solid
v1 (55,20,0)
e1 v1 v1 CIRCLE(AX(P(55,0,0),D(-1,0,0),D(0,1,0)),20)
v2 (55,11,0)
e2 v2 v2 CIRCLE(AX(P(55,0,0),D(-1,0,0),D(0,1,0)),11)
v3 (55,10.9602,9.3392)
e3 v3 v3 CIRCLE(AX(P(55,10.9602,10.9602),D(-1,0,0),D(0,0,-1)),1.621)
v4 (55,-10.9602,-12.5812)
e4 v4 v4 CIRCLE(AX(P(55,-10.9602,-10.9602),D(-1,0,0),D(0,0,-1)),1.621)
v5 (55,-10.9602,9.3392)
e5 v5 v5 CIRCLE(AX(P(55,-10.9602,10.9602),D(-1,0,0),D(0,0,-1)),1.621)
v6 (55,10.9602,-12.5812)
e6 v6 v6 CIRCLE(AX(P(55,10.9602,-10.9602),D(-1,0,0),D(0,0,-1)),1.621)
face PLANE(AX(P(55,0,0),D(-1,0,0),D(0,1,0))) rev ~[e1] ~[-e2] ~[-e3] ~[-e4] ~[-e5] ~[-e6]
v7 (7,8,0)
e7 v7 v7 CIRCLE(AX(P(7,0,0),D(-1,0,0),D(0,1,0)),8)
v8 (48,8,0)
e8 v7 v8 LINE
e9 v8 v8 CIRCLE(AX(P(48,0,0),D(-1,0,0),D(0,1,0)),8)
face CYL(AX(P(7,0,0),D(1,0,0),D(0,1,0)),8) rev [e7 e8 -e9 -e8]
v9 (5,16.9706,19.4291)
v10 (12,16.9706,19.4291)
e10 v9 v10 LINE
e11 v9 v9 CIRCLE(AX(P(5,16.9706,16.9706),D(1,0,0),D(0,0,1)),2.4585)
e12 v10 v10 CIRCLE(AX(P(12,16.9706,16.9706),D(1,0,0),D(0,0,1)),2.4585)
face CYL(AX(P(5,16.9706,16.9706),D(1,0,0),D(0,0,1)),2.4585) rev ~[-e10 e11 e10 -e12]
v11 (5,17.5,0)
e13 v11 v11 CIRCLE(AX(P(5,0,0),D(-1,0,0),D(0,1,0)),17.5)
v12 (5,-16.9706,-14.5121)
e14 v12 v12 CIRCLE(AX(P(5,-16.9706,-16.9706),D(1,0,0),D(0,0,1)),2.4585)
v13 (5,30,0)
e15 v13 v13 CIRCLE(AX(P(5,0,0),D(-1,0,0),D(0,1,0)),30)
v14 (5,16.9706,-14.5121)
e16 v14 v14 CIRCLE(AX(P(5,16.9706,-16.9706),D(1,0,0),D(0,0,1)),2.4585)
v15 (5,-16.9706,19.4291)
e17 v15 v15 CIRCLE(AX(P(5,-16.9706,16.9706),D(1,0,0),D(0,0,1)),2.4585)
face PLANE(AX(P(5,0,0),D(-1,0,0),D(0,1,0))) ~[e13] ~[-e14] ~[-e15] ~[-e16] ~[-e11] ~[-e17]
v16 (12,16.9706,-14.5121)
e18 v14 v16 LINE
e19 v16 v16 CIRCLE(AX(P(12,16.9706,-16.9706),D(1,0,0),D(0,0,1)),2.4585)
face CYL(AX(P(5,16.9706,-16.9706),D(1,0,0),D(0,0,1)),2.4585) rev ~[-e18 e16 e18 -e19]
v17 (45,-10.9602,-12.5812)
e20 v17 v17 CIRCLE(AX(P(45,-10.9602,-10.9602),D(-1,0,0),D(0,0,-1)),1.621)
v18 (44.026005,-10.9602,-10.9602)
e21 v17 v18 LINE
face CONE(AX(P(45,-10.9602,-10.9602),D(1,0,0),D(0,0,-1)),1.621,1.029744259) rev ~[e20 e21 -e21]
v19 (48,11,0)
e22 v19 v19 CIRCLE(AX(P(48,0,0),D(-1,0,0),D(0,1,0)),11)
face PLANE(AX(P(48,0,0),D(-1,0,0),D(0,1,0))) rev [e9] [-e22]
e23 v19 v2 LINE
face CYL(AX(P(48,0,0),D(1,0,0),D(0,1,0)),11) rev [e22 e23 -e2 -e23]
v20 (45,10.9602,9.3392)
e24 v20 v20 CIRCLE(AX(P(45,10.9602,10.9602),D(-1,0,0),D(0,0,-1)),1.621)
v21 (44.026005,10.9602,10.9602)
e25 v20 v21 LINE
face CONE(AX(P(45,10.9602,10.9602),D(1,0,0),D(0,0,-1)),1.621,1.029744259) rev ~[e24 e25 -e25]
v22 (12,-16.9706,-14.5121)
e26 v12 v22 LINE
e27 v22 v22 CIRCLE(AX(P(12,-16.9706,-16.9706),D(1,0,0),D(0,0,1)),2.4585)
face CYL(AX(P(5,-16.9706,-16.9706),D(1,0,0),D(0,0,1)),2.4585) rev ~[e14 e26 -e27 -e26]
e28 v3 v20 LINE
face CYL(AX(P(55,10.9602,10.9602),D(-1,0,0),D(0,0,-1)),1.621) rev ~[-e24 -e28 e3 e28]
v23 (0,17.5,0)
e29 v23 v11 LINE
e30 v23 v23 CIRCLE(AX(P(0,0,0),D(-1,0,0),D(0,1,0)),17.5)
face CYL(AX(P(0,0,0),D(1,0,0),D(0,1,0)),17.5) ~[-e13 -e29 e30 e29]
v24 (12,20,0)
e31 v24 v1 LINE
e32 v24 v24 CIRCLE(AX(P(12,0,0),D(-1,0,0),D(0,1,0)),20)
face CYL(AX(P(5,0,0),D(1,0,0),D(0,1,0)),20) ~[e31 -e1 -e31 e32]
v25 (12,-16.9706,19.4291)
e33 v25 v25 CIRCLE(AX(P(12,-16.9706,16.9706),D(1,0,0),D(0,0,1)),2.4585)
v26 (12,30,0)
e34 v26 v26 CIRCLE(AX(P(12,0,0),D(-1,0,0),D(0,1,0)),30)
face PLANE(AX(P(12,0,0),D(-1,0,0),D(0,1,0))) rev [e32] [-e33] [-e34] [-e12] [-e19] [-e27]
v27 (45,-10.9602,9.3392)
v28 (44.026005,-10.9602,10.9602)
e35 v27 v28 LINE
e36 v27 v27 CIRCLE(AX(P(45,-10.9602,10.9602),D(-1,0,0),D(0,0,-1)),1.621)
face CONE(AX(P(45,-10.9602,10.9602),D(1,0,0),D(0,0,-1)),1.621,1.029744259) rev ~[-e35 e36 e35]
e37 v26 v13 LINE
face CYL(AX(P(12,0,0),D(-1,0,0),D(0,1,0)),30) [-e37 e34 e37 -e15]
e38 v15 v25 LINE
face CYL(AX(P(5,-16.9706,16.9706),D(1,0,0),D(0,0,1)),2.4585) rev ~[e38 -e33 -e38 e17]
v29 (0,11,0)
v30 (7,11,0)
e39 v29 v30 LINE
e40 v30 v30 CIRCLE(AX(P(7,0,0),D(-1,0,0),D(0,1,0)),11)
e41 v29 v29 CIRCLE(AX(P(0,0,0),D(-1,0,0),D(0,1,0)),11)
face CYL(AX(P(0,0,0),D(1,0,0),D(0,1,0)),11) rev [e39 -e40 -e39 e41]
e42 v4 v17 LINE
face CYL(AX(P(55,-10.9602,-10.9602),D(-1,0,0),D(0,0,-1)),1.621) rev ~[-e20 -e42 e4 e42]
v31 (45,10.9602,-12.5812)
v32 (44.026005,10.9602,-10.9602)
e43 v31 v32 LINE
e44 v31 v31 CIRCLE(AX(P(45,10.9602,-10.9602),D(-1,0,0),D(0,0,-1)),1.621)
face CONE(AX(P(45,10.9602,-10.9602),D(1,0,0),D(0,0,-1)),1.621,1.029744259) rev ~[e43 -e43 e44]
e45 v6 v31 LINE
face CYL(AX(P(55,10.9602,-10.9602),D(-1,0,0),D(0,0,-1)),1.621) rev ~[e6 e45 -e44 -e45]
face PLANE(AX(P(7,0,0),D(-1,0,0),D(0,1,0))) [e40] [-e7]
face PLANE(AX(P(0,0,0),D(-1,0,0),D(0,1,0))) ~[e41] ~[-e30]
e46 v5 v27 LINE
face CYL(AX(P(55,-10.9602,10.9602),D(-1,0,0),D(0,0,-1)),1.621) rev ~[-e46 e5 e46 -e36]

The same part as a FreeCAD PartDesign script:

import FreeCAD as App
import Part
import Sketcher

V = App.Vector
Q = App.Units.Quantity

doc = App.newDocument("Part")
params = doc.addObject("Spreadsheet::Sheet", "Params")
for row, (alias, value) in enumerate([
    ("sketch1_width", "7 mm"),
    ("sketch1_width2", "5 mm"),
    ("sketch1_width3", "41 mm"),
    ("revolution_angle", "360 deg"),
    ("hole_diameter", "3.242 mm"),
    ("hole_depth", "10 mm"),
    ("hole2_diameter", "4.917 mm"),
    ("hole2_depth", "17.1 mm"),
], start=1):
    params.set(f"A{row}", alias)
    params.set(f"B{row}", "=" + value)
    params.setAlias(f"B{row}", alias)

body = doc.addObject("PartDesign::Body", "Body")

sketch1 = body.newObject("Sketcher::SketchObject", "Sketch")
sketch1.AttachmentSupport = (doc.getObject("XY_Plane"), [""])
sketch1.MapMode = "FlatFace"
sketch1.addGeometry([
    Part.LineSegment(V(0, 17.5, 0), V(0, 11, 0)),
    Part.LineSegment(V(0, 11, 0), V(7, 11, 0)),
    Part.LineSegment(V(7, 11, 0), V(7, 8, 0)),
    Part.LineSegment(V(7, 8, 0), V(48, 8, 0)),
    Part.LineSegment(V(48, 8, 0), V(48, 11, 0)),
    Part.LineSegment(V(48, 11, 0), V(55, 11, 0)),
    Part.LineSegment(V(55, 11, 0), V(55, 20, 0)),
    Part.LineSegment(V(55, 20, 0), V(12, 20, 0)),
    Part.LineSegment(V(12, 20, 0), V(12, 30, 0)),
    Part.LineSegment(V(12, 30, 0), V(5, 30, 0)),
    Part.LineSegment(V(5, 30, 0), V(5, 17.5, 0)),
    Part.LineSegment(V(5, 17.5, 0), V(0, 17.5, 0)),
], False)
sketch1.addConstraint([
    Sketcher.Constraint("Coincident", 0, 2, 1, 1),
    Sketcher.Constraint("Coincident", 1, 2, 2, 1),
    Sketcher.Constraint("Coincident", 2, 2, 3, 1),
    Sketcher.Constraint("Coincident", 3, 2, 4, 1),
    Sketcher.Constraint("Coincident", 4, 2, 5, 1),
    Sketcher.Constraint("Coincident", 5, 2, 6, 1),
    Sketcher.Constraint("Coincident", 6, 2, 7, 1),
    Sketcher.Constraint("Coincident", 7, 2, 8, 1),
    Sketcher.Constraint("Coincident", 8, 2, 9, 1),
    Sketcher.Constraint("Coincident", 9, 2, 10, 1),
    Sketcher.Constraint("Coincident", 10, 2, 11, 1),
    Sketcher.Constraint("Coincident", 11, 2, 0, 1),
    Sketcher.Constraint("Vertical", 0),
    Sketcher.Constraint("Horizontal", 1),
    Sketcher.Constraint("Vertical", 2),
    Sketcher.Constraint("Horizontal", 3),
    Sketcher.Constraint("Vertical", 4),
    Sketcher.Constraint("Horizontal", 5),
    Sketcher.Constraint("Vertical", 6),
    Sketcher.Constraint("Horizontal", 7),
    Sketcher.Constraint("Vertical", 8),
    Sketcher.Constraint("Horizontal", 9),
    Sketcher.Constraint("Vertical", 10),
    Sketcher.Constraint("Horizontal", 11),
    Sketcher.Constraint("PointOnObject", 0, 2, -2),
    Sketcher.Constraint("Horizontal", 1, 2, 4, 2),
    Sketcher.Constraint("Equal", 1, 5),
    Sketcher.Constraint("Equal", 5, 9),
    Sketcher.Constraint("DistanceX", 1, 1, 1, 2, Q("7 mm")),
    Sketcher.Constraint("DistanceX", 11, 2, 11, 1, Q("5 mm")),
    Sketcher.Constraint("DistanceY", -1, 1, 0, 2, Q("11 mm")),
    Sketcher.Constraint("DistanceY", -1, 1, 2, 2, Q("8 mm")),
    Sketcher.Constraint("DistanceY", -1, 1, 6, 2, Q("20 mm")),
    Sketcher.Constraint("DistanceY", -1, 1, 8, 2, Q("30 mm")),
    Sketcher.Constraint("DistanceY", -1, 1, 10, 2, Q("17.5 mm")),
    Sketcher.Constraint("DistanceX", 3, 1, 3, 2, Q("41 mm")),
])
sketch1.setExpression("Constraints[28]", "Params.sketch1_width")
sketch1.setExpression("Constraints[29]", "Params.sketch1_width2")
sketch1.setExpression("Constraints[35]", "Params.sketch1_width3")
revolution = body.newObject("PartDesign::Revolution", "Revolution")
revolution.Profile = sketch1
revolution.ReferenceAxis = (sketch1, ["H_Axis"])
revolution.setExpression("Angle", "Params.revolution_angle")

sketch2 = body.newObject("Sketcher::SketchObject", "Sketch001")
sketch2.AttachmentSupport = (doc.getObject("YZ_Plane"), [""])
sketch2.MapMode = "FlatFace"
sketch2.AttachmentOffset = App.Placement(V(0, 0, 55), App.Rotation())
sketch2.addGeometry([
    Part.Circle(V(11, -11, 0), V(0, 0, 1), 1.6),
    Part.Circle(V(-11, -11, 0), V(0, 0, 1), 1.6),
    Part.Circle(V(-11, 11, 0), V(0, 0, 1), 1.6),
    Part.Circle(V(11, 11, 0), V(0, 0, 1), 1.6),
], False)
sketch2.addConstraint([
    Sketcher.Constraint("Equal", 0, 1),
    Sketcher.Constraint("Equal", 1, 2),
    Sketcher.Constraint("Equal", 2, 3),
    Sketcher.Constraint("Symmetric", 0, 3, 2, 3, -1, 1),
    Sketcher.Constraint("Symmetric", 1, 3, 3, 3, -1, 1),
    Sketcher.Constraint("Symmetric", 0, 3, 1, 3, -2),
    Sketcher.Constraint("Diameter", 0, Q("3.242 mm")),
    Sketcher.Constraint("DistanceX", -1, 1, 0, 3, Q("10.9602 mm")),
    Sketcher.Constraint("DistanceY", 0, 3, -1, 1, Q("10.9602 mm")),
])
doc.recompute()
hole = body.newObject("PartDesign::Hole", "Hole")
hole.Profile = sketch2
hole.ThreadType = "None"
hole.setExpression("Diameter", "Params.hole_diameter")
hole.DepthType = "Dimension"
hole.setExpression("Depth", "Params.hole_depth")
hole.DrillPoint = "Angled"
hole.DrillPointAngle = 118

sketch3 = body.newObject("Sketcher::SketchObject", "Sketch002")
sketch3.AttachmentSupport = (doc.getObject("YZ_Plane"), [""])
sketch3.MapMode = "FlatFace"
sketch3.AttachmentOffset = App.Placement(V(0, 0, 5), App.Rotation())
sketch3.addGeometry([
    Part.Circle(V(17, -17, 0), V(0, 0, 1), 2.5),
    Part.Circle(V(-17, -17, 0), V(0, 0, 1), 2.5),
    Part.Circle(V(-17, 17, 0), V(0, 0, 1), 2.5),
    Part.Circle(V(17, 17, 0), V(0, 0, 1), 2.5),
], False)
sketch3.addConstraint([
    Sketcher.Constraint("Equal", 0, 1),
    Sketcher.Constraint("Equal", 1, 2),
    Sketcher.Constraint("Equal", 2, 3),
    Sketcher.Constraint("Symmetric", 0, 3, 2, 3, -1, 1),
    Sketcher.Constraint("Symmetric", 1, 3, 3, 3, -1, 1),
    Sketcher.Constraint("Symmetric", 0, 3, 1, 3, -2),
    Sketcher.Constraint("Diameter", 0, Q("4.917 mm")),
    Sketcher.Constraint("DistanceX", -1, 1, 0, 3, Q("16.9706 mm")),
    Sketcher.Constraint("DistanceY", 0, 3, -1, 1, Q("16.9706 mm")),
])
doc.recompute()
hole2 = body.newObject("PartDesign::Hole", "Hole001")
hole2.Profile = sketch3
hole2.ThreadType = "None"
hole2.setExpression("Diameter", "Params.hole2_diameter")
hole2.DepthType = "Dimension"
hole2.setExpression("Depth", "Params.hole2_depth")
hole2.DrillPoint = "Angled"
hole2.DrillPointAngle = 118
hole2.Reversed = True

doc.recompute()
